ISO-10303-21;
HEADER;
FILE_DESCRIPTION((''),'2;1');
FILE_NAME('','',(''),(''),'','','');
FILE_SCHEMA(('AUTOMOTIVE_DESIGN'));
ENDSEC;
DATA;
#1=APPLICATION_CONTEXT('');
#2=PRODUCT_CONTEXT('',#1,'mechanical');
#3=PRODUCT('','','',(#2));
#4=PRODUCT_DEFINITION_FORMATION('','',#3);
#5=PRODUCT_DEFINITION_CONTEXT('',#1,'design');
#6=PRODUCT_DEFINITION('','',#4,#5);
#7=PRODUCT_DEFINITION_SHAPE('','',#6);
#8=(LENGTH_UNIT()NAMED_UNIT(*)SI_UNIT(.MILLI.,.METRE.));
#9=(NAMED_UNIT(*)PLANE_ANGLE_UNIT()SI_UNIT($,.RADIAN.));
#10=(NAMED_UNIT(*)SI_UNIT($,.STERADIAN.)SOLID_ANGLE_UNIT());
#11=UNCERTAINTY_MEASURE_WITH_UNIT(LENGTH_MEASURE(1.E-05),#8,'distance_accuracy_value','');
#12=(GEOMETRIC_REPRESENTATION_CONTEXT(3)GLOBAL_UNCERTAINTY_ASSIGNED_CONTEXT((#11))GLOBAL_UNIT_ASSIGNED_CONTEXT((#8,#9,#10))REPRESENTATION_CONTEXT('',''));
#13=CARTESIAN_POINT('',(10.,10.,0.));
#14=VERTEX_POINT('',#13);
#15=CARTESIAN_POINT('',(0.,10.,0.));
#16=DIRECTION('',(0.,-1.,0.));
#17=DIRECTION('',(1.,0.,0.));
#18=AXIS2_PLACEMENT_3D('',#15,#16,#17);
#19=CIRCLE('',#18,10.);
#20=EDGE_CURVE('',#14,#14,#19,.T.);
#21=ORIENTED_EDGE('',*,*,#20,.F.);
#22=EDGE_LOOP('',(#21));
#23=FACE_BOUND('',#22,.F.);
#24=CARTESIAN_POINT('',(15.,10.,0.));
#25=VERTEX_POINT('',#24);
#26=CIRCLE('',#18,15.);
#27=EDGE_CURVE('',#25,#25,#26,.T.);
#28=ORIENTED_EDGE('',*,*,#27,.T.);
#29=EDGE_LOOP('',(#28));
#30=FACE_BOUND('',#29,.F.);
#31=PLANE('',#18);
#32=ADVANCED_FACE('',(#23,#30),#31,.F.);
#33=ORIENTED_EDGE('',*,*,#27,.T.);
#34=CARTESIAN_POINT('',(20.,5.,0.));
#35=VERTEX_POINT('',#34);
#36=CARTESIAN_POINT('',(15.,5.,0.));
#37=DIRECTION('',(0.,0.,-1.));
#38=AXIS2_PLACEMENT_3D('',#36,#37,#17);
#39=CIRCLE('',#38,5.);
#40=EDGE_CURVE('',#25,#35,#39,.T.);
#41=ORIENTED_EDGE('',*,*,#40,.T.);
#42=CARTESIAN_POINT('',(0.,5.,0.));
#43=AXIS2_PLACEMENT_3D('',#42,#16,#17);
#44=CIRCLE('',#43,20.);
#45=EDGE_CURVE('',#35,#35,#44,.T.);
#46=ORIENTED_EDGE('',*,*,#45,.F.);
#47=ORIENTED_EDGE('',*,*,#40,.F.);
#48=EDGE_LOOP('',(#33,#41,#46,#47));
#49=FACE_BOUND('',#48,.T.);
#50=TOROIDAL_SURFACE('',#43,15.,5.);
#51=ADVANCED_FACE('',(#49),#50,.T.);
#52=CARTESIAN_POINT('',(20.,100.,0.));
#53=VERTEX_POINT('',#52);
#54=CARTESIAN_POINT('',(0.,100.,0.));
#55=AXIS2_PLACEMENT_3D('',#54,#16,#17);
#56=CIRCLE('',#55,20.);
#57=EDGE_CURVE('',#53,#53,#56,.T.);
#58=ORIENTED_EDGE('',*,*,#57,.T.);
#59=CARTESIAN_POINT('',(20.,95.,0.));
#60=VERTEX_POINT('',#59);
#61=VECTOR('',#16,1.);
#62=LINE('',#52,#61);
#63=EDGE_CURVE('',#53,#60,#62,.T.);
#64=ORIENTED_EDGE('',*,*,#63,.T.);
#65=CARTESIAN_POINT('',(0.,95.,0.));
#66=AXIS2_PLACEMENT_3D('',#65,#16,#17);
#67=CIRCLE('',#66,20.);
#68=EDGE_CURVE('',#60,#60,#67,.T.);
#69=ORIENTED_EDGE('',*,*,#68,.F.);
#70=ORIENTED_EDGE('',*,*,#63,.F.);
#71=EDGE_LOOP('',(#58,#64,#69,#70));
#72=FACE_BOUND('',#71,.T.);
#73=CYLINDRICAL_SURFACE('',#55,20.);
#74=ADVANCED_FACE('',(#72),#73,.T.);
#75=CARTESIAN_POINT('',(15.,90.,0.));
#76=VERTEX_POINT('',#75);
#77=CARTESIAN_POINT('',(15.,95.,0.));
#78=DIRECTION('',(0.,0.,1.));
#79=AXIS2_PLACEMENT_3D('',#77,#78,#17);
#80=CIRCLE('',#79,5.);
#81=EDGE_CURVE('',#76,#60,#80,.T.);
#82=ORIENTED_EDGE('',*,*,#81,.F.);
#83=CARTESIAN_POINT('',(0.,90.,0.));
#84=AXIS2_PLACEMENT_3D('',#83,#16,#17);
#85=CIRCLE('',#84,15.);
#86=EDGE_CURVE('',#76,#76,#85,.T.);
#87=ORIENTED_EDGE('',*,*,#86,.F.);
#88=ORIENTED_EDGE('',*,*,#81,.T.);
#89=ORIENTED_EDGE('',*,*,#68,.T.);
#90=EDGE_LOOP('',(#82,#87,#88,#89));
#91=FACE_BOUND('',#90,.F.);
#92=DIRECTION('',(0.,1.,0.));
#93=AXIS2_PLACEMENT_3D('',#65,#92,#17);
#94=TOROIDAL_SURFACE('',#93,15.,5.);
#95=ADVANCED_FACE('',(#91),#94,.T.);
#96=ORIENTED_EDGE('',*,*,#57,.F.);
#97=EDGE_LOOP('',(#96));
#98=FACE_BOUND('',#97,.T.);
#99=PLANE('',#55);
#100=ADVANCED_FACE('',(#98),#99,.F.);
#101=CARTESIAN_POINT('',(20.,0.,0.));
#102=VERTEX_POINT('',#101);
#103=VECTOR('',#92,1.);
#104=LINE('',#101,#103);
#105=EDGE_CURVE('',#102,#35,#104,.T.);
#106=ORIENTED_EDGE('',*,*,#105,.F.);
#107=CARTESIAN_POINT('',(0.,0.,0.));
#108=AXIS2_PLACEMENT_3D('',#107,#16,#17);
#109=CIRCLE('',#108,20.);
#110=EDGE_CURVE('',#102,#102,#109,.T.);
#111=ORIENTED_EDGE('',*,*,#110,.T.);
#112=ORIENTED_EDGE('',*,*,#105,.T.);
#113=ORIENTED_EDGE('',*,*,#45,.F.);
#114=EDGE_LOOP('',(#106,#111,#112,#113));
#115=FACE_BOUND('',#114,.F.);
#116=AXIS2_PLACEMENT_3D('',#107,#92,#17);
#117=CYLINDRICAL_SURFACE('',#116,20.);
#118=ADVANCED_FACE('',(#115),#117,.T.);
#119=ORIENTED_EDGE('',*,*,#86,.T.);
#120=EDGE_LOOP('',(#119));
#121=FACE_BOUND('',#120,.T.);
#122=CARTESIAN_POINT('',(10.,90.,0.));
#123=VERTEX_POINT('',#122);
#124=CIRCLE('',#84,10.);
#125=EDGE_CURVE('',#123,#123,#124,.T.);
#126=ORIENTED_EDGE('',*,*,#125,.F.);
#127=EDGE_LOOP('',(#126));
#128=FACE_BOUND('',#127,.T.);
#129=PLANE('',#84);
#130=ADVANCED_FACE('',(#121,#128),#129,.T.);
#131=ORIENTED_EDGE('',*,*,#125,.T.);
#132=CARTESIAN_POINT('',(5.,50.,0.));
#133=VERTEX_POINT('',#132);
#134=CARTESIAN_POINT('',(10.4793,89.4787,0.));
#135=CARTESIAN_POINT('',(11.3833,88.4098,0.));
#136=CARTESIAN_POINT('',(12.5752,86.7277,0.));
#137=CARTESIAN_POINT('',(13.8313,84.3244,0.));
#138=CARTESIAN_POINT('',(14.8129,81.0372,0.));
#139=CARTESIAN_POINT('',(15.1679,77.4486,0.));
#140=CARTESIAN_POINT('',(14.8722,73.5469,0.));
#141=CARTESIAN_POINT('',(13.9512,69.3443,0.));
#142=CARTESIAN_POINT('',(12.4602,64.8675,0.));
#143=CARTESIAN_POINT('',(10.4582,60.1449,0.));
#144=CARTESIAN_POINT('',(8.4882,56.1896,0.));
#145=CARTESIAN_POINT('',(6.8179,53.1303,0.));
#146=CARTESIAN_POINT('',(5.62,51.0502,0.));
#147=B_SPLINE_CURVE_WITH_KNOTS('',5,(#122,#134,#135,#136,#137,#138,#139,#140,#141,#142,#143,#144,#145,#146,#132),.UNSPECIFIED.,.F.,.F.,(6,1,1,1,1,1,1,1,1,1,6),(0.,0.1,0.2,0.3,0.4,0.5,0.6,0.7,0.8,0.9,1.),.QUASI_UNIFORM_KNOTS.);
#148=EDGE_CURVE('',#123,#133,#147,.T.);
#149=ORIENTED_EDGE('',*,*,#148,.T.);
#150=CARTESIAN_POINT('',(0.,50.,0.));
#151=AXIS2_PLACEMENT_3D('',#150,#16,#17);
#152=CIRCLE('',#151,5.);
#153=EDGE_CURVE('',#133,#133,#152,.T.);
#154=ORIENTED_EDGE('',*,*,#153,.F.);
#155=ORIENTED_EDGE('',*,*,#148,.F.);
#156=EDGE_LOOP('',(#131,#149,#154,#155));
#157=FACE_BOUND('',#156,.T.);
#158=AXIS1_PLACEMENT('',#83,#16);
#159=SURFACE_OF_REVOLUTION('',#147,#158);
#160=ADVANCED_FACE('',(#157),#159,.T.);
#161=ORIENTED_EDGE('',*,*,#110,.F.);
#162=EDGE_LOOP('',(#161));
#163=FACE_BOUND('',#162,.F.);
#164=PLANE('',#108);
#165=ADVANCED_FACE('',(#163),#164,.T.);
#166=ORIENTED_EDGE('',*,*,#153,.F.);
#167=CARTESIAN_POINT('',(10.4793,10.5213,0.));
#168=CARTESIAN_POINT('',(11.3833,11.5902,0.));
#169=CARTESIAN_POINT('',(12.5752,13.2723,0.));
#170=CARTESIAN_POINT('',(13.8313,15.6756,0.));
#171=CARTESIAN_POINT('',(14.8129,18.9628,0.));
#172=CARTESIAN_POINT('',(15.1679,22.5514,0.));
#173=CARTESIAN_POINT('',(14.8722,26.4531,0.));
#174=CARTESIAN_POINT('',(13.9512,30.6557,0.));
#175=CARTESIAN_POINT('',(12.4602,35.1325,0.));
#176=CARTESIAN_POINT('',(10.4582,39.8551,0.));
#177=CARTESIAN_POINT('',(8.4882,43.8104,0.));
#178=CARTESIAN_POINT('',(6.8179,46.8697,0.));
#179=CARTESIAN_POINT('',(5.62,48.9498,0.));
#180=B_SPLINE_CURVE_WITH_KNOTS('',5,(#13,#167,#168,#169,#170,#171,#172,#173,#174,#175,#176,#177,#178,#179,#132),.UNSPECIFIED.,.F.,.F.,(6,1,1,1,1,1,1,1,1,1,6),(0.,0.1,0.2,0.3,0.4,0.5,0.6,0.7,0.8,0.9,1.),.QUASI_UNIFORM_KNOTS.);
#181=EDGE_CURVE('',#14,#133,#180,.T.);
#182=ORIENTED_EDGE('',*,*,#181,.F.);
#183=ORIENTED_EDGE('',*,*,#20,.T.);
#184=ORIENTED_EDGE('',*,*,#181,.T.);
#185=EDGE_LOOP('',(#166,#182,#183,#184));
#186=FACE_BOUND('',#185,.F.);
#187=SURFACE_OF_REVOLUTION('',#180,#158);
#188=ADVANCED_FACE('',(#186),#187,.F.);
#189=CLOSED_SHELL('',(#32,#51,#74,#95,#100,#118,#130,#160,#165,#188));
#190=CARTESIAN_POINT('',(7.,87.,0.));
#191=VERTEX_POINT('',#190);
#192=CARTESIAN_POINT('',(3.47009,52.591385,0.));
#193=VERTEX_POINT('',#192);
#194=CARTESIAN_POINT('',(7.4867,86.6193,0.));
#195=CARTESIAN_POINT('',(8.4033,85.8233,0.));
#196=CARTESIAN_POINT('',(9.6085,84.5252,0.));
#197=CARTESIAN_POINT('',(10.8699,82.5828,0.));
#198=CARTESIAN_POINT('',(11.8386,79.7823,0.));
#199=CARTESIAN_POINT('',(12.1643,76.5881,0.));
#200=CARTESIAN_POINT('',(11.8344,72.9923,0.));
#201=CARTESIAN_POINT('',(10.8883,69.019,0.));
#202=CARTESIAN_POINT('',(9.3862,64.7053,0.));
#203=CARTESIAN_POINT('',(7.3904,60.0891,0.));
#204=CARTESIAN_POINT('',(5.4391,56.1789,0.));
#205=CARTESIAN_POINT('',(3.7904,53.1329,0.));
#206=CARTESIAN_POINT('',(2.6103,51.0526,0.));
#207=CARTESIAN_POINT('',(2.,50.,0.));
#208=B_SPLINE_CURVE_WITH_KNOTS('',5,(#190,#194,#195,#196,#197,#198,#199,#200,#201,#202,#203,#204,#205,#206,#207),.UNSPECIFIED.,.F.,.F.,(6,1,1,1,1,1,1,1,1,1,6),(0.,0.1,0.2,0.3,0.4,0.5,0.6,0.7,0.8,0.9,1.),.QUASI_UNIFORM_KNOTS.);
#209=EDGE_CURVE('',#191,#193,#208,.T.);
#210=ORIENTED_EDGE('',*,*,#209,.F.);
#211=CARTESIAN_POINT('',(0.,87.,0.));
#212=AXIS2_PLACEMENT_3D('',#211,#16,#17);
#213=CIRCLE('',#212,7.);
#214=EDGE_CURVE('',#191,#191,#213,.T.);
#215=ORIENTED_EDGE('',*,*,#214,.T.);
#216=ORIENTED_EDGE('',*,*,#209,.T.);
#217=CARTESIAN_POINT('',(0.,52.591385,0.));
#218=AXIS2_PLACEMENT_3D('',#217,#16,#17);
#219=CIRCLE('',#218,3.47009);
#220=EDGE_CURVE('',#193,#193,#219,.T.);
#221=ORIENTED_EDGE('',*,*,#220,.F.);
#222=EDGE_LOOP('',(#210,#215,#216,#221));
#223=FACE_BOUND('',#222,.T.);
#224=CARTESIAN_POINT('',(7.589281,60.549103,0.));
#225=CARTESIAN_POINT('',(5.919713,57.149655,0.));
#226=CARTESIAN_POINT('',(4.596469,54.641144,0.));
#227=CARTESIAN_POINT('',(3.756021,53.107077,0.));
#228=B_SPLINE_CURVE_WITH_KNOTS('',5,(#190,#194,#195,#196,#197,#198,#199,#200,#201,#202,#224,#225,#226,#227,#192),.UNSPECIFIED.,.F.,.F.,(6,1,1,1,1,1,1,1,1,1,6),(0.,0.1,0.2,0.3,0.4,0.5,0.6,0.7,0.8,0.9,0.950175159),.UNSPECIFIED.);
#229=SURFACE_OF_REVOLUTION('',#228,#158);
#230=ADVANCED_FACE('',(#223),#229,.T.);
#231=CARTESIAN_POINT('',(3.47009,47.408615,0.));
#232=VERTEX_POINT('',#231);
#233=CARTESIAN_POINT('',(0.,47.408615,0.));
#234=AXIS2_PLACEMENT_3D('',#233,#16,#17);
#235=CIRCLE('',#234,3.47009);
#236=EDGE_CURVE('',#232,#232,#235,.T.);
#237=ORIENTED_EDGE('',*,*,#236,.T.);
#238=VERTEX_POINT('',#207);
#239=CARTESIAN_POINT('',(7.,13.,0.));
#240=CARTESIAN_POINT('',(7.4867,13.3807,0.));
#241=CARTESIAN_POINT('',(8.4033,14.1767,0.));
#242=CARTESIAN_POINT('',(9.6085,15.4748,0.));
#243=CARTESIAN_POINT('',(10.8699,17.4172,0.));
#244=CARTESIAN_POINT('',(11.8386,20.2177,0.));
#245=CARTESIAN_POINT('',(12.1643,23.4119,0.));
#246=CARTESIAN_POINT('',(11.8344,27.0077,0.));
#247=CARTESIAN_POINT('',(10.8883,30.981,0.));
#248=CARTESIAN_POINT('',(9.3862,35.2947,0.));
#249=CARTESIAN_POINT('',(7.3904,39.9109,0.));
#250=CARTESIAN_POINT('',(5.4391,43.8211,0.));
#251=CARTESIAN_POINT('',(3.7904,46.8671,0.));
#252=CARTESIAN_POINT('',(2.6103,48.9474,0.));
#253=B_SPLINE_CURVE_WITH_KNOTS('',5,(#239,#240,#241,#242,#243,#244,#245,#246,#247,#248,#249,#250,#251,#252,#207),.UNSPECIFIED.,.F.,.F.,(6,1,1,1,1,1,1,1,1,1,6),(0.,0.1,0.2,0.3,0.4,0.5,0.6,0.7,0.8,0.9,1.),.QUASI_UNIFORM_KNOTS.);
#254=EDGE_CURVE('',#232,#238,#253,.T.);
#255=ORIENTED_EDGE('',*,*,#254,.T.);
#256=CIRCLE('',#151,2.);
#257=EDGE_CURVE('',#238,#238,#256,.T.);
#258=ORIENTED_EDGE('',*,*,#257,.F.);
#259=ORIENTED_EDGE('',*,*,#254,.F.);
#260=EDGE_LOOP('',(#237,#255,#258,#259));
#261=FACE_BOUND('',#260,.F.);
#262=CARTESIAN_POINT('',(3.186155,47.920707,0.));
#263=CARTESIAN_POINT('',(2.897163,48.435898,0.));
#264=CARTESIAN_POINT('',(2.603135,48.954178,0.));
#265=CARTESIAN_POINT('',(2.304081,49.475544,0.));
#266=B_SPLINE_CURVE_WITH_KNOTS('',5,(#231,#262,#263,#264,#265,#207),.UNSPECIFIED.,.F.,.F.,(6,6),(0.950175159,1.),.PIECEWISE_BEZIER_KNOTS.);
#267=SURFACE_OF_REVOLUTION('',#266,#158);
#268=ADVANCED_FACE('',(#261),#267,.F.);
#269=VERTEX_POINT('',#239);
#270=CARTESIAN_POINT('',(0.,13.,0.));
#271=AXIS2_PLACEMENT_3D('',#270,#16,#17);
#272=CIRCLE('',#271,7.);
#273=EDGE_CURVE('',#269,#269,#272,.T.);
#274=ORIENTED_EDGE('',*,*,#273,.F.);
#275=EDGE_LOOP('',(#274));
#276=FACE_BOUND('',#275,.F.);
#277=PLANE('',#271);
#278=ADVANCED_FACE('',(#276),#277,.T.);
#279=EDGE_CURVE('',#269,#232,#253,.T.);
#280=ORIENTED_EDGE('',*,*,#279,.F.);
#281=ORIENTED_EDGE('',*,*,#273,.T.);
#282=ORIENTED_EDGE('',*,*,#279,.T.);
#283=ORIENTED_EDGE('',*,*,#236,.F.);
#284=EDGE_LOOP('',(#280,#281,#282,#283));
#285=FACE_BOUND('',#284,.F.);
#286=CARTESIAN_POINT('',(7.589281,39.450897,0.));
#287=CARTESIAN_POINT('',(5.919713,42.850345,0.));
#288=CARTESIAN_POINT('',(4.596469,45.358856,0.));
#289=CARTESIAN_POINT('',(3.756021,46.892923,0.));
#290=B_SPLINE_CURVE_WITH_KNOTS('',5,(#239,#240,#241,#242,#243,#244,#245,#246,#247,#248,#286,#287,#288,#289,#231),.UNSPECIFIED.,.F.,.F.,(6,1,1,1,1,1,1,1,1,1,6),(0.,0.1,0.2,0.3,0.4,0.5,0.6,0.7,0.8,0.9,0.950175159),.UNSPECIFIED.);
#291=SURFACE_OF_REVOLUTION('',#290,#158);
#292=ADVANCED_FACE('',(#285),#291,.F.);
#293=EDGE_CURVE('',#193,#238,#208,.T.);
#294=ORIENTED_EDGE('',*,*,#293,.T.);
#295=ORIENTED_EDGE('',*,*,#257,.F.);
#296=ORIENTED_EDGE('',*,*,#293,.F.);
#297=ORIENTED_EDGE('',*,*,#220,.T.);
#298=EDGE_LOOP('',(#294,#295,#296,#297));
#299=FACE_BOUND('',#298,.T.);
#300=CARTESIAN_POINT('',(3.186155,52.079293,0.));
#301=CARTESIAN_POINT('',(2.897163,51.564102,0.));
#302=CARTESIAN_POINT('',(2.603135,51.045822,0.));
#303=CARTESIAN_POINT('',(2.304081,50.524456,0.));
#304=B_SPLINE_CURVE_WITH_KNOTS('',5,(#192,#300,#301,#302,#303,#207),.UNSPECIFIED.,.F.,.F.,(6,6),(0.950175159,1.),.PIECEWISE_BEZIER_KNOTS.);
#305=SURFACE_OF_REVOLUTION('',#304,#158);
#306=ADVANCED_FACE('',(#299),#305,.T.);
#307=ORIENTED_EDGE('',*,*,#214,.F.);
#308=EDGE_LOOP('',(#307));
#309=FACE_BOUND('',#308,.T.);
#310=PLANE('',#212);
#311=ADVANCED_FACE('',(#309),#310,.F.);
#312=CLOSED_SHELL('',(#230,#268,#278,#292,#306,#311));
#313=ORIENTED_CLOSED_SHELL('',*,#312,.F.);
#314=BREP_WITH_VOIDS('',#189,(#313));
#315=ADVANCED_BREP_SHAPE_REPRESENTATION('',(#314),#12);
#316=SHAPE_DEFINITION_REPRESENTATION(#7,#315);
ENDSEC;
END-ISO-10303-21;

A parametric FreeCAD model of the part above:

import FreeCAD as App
import Part
import Sketcher
from FreeCAD import Vector


def edges_at(feature, points):
    """Names of the edges that pass closest to the given points."""
    edges = feature.Shape.Edges
    near = lambda p: min(range(len(edges)), key=lambda i: edges[i].distToShape(Part.Vertex(*p))[0])
    return sorted({f"Edge{near(p) + 1}" for p in points})

doc = App.newDocument("Part")
body = doc.addObject("PartDesign::Body", "Body")

sketch1 = body.newObject("Sketcher::SketchObject", "Sketch")
sketch1.AttachmentSupport = (doc.getObject("XY_Plane"), [""])
sketch1.MapMode = "FlatFace"
sketch1.addGeometry(Part.LineSegment(Vector(0, 0, 0), Vector(20, 0, 0)), False)
sketch1.addGeometry(Part.LineSegment(Vector(20, 0, 0), Vector(20, 10, 0)), False)
sketch1.addGeometry(Part.LineSegment(Vector(20, 10, 0), Vector(10, 10, 0)), False)
sketch1.addGeometry(Part.BSplineCurve([Vector(10, 10, 0), Vector(10.4793, 10.5213, 0), Vector(11.3833, 11.5902, 0), Vector(12.5752, 13.2723, 0), Vector(13.8313, 15.6756, 0), Vector(14.8129, 18.9628, 0), Vector(15.1679, 22.5514, 0), Vector(14.8722, 26.4531, 0), Vector(13.9512, 30.6557, 0), Vector(12.4602, 35.1325, 0), Vector(10.4582, 39.8551, 0), Vector(8.4882, 43.8104, 0), Vector(6.8179, 46.8697, 0), Vector(5.62, 48.9498, 0), Vector(5, 50, 0)], [6, 1, 1, 1, 1, 1, 1, 1, 1, 1, 6], [0, 0.1, 0.2, 0.3, 0.4, 0.5, 0.6, 0.7, 0.8, 0.9, 1], False, 5, [1, 1, 1, 1, 1, 1, 1, 1, 1, 1, 1, 1, 1, 1, 1], False), False)
sketch1.addGeometry(Part.BSplineCurve([Vector(10, 90, 0), Vector(10.4793, 89.4787, 0), Vector(11.3833, 88.4098, 0), Vector(12.5752, 86.7277, 0), Vector(13.8313, 84.3244, 0), Vector(14.8129, 81.0372, 0), Vector(15.1679, 77.4486, 0), Vector(14.8722, 73.5469, 0), Vector(13.9512, 69.3443, 0), Vector(12.4602, 64.8675, 0), Vector(10.4582, 60.1449, 0), Vector(8.4882, 56.1896, 0), Vector(6.8179, 53.1303, 0), Vector(5.62, 51.0502, 0), Vector(5, 50, 0)], [6, 1, 1, 1, 1, 1, 1, 1, 1, 1, 6], [0, 0.1, 0.2, 0.3, 0.4, 0.5, 0.6, 0.7, 0.8, 0.9, 1], False, 5, [1, 1, 1, 1, 1, 1, 1, 1, 1, 1, 1, 1, 1, 1, 1], False), False)
sketch1.addGeometry(Part.LineSegment(Vector(10, 90, 0), Vector(20, 90, 0)), False)
sketch1.addGeometry(Part.LineSegment(Vector(20, 90, 0), Vector(20, 100, 0)), False)
sketch1.addGeometry(Part.LineSegment(Vector(20, 100, 0), Vector(0, 100, 0)), False)
sketch1.addGeometry(Part.LineSegment(Vector(0, 100, 0), Vector(0, 87, 0)), False)
sketch1.addGeometry(Part.LineSegment(Vector(0, 87, 0), Vector(7, 87, 0)), False)
sketch1.addGeometry(Part.BSplineCurve([Vector(7, 87, 0), Vector(7.4867, 86.6193, 0), Vector(8.4033, 85.8233, 0), Vector(9.6085, 84.5252, 0), Vector(10.8699, 82.5828, 0), Vector(11.8386, 79.7823, 0), Vector(12.1643, 76.5881, 0), Vector(11.8344, 72.9923, 0), Vector(10.8883, 69.019, 0), Vector(9.3862, 64.7053, 0), Vector(7.589281, 60.549103, 0), Vector(5.919713, 57.149655, 0), Vector(4.596469, 54.641144, 0), Vector(3.756021, 53.107077, 0), Vector(3.47009, 52.591385, 0)], [6, 1, 1, 1, 1, 1, 1, 1, 1, 1, 6], [0, 0.1, 0.2, 0.3, 0.4, 0.5, 0.6, 0.7, 0.8, 0.9, 0.950175159], False, 5, [1, 1, 1, 1, 1, 1, 1, 1, 1, 1, 1, 1, 1, 1, 1], False), False)
sketch1.addGeometry(Part.BSplineCurve([Vector(3.47009, 52.591385, 0), Vector(3.186155, 52.079293, 0), Vector(2.897163, 51.564102, 0), Vector(2.603135, 51.045822, 0), Vector(2.304081, 50.524456, 0), Vector(2, 50, 0)], [6, 6], [0.950175159, 1], False, 5, [1, 1, 1, 1, 1, 1], False), False)
sketch1.addGeometry(Part.BSplineCurve([Vector(3.47009, 47.408615, 0), Vector(3.186155, 47.920707, 0), Vector(2.897163, 48.435898, 0), Vector(2.603135, 48.954178, 0), Vector(2.304081, 49.475544, 0), Vector(2, 50, 0)], [6, 6], [0.950175159, 1], False, 5, [1, 1, 1, 1, 1, 1], False), False)
sketch1.addGeometry(Part.BSplineCurve([Vector(7, 13, 0), Vector(7.4867, 13.3807, 0), Vector(8.4033, 14.1767, 0), Vector(9.6085, 15.4748, 0), Vector(10.8699, 17.4172, 0), Vector(11.8386, 20.2177, 0), Vector(12.1643, 23.4119, 0), Vector(11.8344, 27.0077, 0), Vector(10.8883, 30.981, 0), Vector(9.3862, 35.2947, 0), Vector(7.589281, 39.450897, 0), Vector(5.919713, 42.850345, 0), Vector(4.596469, 45.358856, 0), Vector(3.756021, 46.892923, 0), Vector(3.47009, 47.408615, 0)], [6, 1, 1, 1, 1, 1, 1, 1, 1, 1, 6], [0, 0.1, 0.2, 0.3, 0.4, 0.5, 0.6, 0.7, 0.8, 0.9, 0.950175159], False, 5, [1, 1, 1, 1, 1, 1, 1, 1, 1, 1, 1, 1, 1, 1, 1], False), False)
sketch1.addGeometry(Part.LineSegment(Vector(7, 13, 0), Vector(0, 13, 0)), False)
sketch1.addGeometry(Part.LineSegment(Vector(0, 13, 0), Vector(0, 0, 0)), False)
sketch1.addConstraint(Sketcher.Constraint("Block", 3))
sketch1.addConstraint(Sketcher.Constraint("Block", 4))
sketch1.addConstraint(Sketcher.Constraint("Block", 10))
sketch1.addConstraint(Sketcher.Constraint("Block", 11))
sketch1.addConstraint(Sketcher.Constraint("Block", 12))
sketch1.addConstraint(Sketcher.Constraint("Block", 13))
sketch1.addConstraint(Sketcher.Constraint("Coincident", 0, 2, 1, 1))
sketch1.addConstraint(Sketcher.Constraint("Coincident", 1, 2, 2, 1))
sketch1.addConstraint(Sketcher.Constraint("Coincident", 2, 2, 3, 1))
sketch1.addConstraint(Sketcher.Constraint("Coincident", 4, 1, 5, 1))
sketch1.addConstraint(Sketcher.Constraint("Coincident", 5, 2, 6, 1))
sketch1.addConstraint(Sketcher.Constraint("Coincident", 6, 2, 7, 1))
sketch1.addConstraint(Sketcher.Constraint("Coincident", 7, 2, 8, 1))
sketch1.addConstraint(Sketcher.Constraint("Coincident", 8, 2, 9, 1))
sketch1.addConstraint(Sketcher.Constraint("Coincident", 9, 2, 10, 1))
sketch1.addConstraint(Sketcher.Constraint("Coincident", 13, 1, 14, 1))
sketch1.addConstraint(Sketcher.Constraint("Coincident", 14, 2, 15, 1))
sketch1.addConstraint(Sketcher.Constraint("Coincident", 15, 2, 0, 1))
sketch1.addConstraint(Sketcher.Constraint("Horizontal", 0))
sketch1.addConstraint(Sketcher.Constraint("Vertical", 1))
sketch1.addConstraint(Sketcher.Constraint("Horizontal", 2))
sketch1.addConstraint(Sketcher.Constraint("Horizontal", 5))
sketch1.addConstraint(Sketcher.Constraint("Vertical", 6))
sketch1.addConstraint(Sketcher.Constraint("Horizontal", 7))
sketch1.addConstraint(Sketcher.Constraint("Vertical", 8))
sketch1.addConstraint(Sketcher.Constraint("Horizontal", 9))
sketch1.addConstraint(Sketcher.Constraint("Horizontal", 14))
sketch1.addConstraint(Sketcher.Constraint("Vertical", 15))
sketch1.addConstraint(Sketcher.Constraint("Coincident", 15, 2, -1, 1))
sketch1.addConstraint(Sketcher.Constraint("PointOnObject", 7, 2, -2))
sketch1.addConstraint(Sketcher.Constraint("Vertical", 1, 2, 5, 2))
sketch1.addConstraint(Sketcher.Constraint("Equal", 5, 1))
sketch1.addConstraint(Sketcher.Constraint("Equal", 1, 6))
revolution = body.newObject("PartDesign::Revolution", "Revolution")
revolution.Profile = sketch1
revolution.ReferenceAxis = (sketch1, ["V_Axis"])
revolution.Angle = 360
doc.recompute()

fillet = body.newObject("PartDesign::Fillet", "Fillet")
fillet.Base = (revolution, edges_at(revolution, [(-18.646, 90, -7.232), (-18.646, 10, -7.232)]))
fillet.Radius = 5

doc.recompute()
